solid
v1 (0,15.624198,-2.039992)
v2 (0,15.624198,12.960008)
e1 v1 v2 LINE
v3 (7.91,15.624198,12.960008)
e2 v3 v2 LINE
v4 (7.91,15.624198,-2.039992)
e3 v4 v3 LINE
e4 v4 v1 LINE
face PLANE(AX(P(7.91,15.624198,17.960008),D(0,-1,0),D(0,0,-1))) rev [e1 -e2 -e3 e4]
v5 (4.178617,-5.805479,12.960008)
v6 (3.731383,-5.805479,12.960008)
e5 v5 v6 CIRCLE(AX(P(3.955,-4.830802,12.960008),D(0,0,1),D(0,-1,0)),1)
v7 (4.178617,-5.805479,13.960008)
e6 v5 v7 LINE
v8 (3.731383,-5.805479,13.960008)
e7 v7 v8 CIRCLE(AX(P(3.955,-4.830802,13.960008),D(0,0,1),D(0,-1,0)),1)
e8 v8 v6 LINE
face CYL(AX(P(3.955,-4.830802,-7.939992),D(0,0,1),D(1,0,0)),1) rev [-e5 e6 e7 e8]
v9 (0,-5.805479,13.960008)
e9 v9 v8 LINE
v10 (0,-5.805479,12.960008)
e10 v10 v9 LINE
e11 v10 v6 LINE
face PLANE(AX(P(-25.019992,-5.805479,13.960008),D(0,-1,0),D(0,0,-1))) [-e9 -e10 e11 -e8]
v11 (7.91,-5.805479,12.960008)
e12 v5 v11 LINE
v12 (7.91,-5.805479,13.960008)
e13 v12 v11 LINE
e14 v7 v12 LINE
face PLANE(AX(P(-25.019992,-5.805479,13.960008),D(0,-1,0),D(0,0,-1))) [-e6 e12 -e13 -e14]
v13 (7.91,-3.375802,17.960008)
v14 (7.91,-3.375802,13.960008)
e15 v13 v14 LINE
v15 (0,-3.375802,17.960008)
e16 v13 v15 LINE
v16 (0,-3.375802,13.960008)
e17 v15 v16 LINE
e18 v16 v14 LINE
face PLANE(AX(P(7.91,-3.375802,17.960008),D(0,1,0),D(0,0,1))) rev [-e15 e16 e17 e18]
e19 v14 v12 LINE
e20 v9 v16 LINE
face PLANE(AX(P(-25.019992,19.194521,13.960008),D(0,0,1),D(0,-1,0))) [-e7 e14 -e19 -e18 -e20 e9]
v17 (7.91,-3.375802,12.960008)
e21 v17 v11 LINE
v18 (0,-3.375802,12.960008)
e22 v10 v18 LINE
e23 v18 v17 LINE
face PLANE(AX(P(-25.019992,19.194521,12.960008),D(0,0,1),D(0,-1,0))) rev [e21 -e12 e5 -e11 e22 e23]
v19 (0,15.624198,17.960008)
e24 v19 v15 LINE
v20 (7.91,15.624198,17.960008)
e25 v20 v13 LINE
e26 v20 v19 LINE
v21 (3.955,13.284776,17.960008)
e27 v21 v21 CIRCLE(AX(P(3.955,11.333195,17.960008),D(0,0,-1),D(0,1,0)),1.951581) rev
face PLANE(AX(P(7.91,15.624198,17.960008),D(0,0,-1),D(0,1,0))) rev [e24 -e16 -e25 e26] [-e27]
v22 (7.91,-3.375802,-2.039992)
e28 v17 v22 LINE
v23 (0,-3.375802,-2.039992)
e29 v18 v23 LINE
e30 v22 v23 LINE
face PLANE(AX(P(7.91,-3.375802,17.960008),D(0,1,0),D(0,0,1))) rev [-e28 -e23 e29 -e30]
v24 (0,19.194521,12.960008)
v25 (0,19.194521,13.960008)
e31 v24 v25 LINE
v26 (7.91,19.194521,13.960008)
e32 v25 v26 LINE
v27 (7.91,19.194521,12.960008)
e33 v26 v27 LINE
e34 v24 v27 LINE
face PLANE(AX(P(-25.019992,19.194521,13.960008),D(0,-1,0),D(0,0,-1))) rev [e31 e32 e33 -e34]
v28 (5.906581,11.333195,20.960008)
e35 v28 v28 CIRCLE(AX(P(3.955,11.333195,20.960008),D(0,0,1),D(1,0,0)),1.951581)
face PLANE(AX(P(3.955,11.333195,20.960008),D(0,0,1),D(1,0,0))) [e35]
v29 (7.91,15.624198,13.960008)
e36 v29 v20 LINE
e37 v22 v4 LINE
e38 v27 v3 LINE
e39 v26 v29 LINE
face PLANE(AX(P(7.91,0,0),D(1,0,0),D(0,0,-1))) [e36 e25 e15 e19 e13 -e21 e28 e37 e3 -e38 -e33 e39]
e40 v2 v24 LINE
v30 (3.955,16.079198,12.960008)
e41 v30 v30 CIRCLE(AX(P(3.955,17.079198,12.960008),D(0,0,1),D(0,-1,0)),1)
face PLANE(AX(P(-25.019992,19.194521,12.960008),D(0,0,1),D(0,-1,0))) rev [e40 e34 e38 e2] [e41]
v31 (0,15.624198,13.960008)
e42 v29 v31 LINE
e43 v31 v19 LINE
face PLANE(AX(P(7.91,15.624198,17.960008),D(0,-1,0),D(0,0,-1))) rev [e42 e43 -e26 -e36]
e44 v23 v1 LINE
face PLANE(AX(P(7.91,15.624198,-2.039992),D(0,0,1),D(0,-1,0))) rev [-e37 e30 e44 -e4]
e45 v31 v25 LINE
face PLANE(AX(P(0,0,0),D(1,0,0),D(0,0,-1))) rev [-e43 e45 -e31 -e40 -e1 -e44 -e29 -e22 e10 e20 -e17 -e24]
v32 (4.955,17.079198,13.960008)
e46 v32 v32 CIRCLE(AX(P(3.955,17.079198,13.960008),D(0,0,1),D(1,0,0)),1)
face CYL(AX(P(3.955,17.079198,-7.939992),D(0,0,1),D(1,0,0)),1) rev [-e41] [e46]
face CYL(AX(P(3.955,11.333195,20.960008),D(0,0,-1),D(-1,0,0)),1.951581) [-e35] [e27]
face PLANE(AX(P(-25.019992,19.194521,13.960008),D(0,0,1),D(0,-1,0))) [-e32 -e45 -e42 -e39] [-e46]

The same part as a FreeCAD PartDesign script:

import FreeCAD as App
import Part
import Sketcher
Q = App.Units.Quantity


def add_polygon(sketch, points):
    """Adds a closed chain of lines whose ends are joined by coincident constraints."""
    first, n = sketch.GeometryCount, len(points)
    for a, b in zip(points, points[1:] + points[:1]):
        sketch.addGeometry(Part.LineSegment(App.Vector(*a, 0), App.Vector(*b, 0)), False)
    for i in range(n):
        sketch.addConstraint(Sketcher.Constraint("Coincident", first + i, 2, first + (i + 1) % n, 1))

doc = App.newDocument("Part")
params = doc.addObject("Spreadsheet::Sheet", "Params")
for row, (alias, value) in enumerate([
    ("sketch1_width", "19 mm"),
    ("sketch1_height", "20 mm"),
    ("pad1_length", "7.91 mm"),
    ("sketch2_width", "25 mm"),
    ("sketch2_height", "1 mm"),
    ("pad2_length", "7.91 mm"),
    ("sketch3_diameter", "2 mm"),
    ("pocket1_length", "21.9 mm"),
    ("pad3_length", "3 mm"),
], start=1):
    params.set(f"A{row}", alias)
    params.set(f"B{row}", "=" + value)
    params.setAlias(f"B{row}", alias)

body = doc.addObject("PartDesign::Body", "Body")

# Sketch on YZ plane
sketch1 = body.newObject("Sketcher::SketchObject", "Sketch")
sketch1.AttachmentSupport = (doc.getObject("YZ_Plane"), [""])
sketch1.MapMode = "FlatFace"
add_polygon(sketch1, [(15.624198, 17.960008), (-3.375802, 17.960008), (-3.375802, -2.039992), (15.624198, -2.039992)])  # lines 0-3
sketch1.addConstraint(Sketcher.Constraint("Horizontal", 0))
sketch1.addConstraint(Sketcher.Constraint("Vertical", 1))
sketch1.addConstraint(Sketcher.Constraint("Horizontal", 2))
sketch1.addConstraint(Sketcher.Constraint("Vertical", 3))
sketch1.addConstraint(Sketcher.Constraint("DistanceX", 0, 2, 0, 1, Q("19 mm")))
sketch1.addConstraint(Sketcher.Constraint("DistanceY", 1, 2, 1, 1, Q("20 mm")))
sketch1.addConstraint(Sketcher.Constraint("DistanceY", -1, 1, 0, 2, Q("17.960008 mm")))
sketch1.addConstraint(Sketcher.Constraint("DistanceX", 0, 2, -1, 1, Q("3.375802 mm")))
sketch1.setExpression("Constraints[8]", "Params.sketch1_width")
sketch1.setExpression("Constraints[9]", "Params.sketch1_height")
pad1 = body.newObject("PartDesign::Pad", "Pad")
pad1.Profile = sketch1
pad1.setExpression("Length", "Params.pad1_length")

# Sketch on YZ plane
sketch2 = body.newObject("Sketcher::SketchObject", "Sketch001")
sketch2.AttachmentSupport = (doc.getObject("YZ_Plane"), [""])
sketch2.MapMode = "FlatFace"
sketch2.AttachmentOffset = App.Placement(App.Vector(0, 0, 7.91), App.Rotation())
add_polygon(sketch2, [(19.194521, 13.960008), (-5.805479, 13.960008), (-5.805479, 12.960008), (19.194521, 12.960008)])  # lines 0-3
sketch2.addConstraint(Sketcher.Constraint("Horizontal", 0))
sketch2.addConstraint(Sketcher.Constraint("Vertical", 1))
sketch2.addConstraint(Sketcher.Constraint("Horizontal", 2))
sketch2.addConstraint(Sketcher.Constraint("Vertical", 3))
sketch2.addConstraint(Sketcher.Constraint("DistanceX", 0, 2, 0, 1, Q("25 mm")))
sketch2.addConstraint(Sketcher.Constraint("DistanceY", 1, 2, 1, 1, Q("1 mm")))
sketch2.addConstraint(Sketcher.Constraint("DistanceX", 0, 2, -1, 1, Q("5.805479 mm")))
sketch2.addConstraint(Sketcher.Constraint("DistanceY", -1, 1, 0, 2, Q("13.960008 mm")))
sketch2.setExpression("Constraints[8]", "Params.sketch2_width")
sketch2.setExpression("Constraints[9]", "Params.sketch2_height")
pad2 = body.newObject("PartDesign::Pad", "Pad001")
pad2.Profile = sketch2
pad2.setExpression("Length", "Params.pad2_length")
pad2.Reversed = True

# Sketch on XY plane
sketch3 = body.newObject("Sketcher::SketchObject", "Sketch002")
sketch3.AttachmentSupport = (doc.getObject("XY_Plane"), [""])
sketch3.MapMode = "FlatFace"
sketch3.AttachmentOffset = App.Placement(App.Vector(0, 0, 13.960008), App.Rotation())
sketch3.addGeometry(Part.Circle(App.Vector(3.955, 17.079198, 0), App.Vector(0, 0, 1), 1), False)
sketch3.addGeometry(Part.Circle(App.Vector(3.955, -4.830802, 0), App.Vector(0, 0, 1), 1), False)
sketch3.addConstraint(Sketcher.Constraint("Equal", 0, 1))
sketch3.addConstraint(Sketcher.Constraint("Vertical", 0, 3, 1, 3))
sketch3.addConstraint(Sketcher.Constraint("Diameter", 0, Q("2 mm")))
sketch3.addConstraint(Sketcher.Constraint("DistanceY", 1, 3, 0, 3, Q("21.91 mm")))
sketch3.addConstraint(Sketcher.Constraint("DistanceX", -1, 1, 0, 3, Q("3.955 mm")))
sketch3.addConstraint(Sketcher.Constraint("DistanceY", -1, 1, 0, 3, Q("17.079198 mm")))
sketch3.setExpression("Constraints[2]", "Params.sketch3_diameter")
pocket1 = body.newObject("PartDesign::Pocket", "Pocket")
pocket1.Profile = sketch3
pocket1.setExpression("Length", "Params.pocket1_length")

# Sketch on XY plane
sketch4 = body.newObject("Sketcher::SketchObject", "Sketch003")
sketch4.AttachmentSupport = (doc.getObject("XY_Plane"), [""])
sketch4.MapMode = "FlatFace"
sketch4.AttachmentOffset = App.Placement(App.Vector(0, 0, 17.960008), App.Rotation())
sketch4.addGeometry(Part.Circle(App.Vector(3.955, 11.333195, 0), App.Vector(0, 0, 1), 1.951581), False)
sketch4.addConstraint(Sketcher.Constraint("Diameter", 0, Q("3.903162 mm")))
sketch4.addConstraint(Sketcher.Constraint("DistanceX", -1, 1, 0, 3, Q("3.955 mm")))
sketch4.addConstraint(Sketcher.Constraint("DistanceY", -1, 1, 0, 3, Q("11.333195 mm")))
pad3 = body.newObject("PartDesign::Pad", "Pad002")
pad3.Profile = sketch4
pad3.setExpression("Length", "Params.pad3_length")

doc.recompute()
